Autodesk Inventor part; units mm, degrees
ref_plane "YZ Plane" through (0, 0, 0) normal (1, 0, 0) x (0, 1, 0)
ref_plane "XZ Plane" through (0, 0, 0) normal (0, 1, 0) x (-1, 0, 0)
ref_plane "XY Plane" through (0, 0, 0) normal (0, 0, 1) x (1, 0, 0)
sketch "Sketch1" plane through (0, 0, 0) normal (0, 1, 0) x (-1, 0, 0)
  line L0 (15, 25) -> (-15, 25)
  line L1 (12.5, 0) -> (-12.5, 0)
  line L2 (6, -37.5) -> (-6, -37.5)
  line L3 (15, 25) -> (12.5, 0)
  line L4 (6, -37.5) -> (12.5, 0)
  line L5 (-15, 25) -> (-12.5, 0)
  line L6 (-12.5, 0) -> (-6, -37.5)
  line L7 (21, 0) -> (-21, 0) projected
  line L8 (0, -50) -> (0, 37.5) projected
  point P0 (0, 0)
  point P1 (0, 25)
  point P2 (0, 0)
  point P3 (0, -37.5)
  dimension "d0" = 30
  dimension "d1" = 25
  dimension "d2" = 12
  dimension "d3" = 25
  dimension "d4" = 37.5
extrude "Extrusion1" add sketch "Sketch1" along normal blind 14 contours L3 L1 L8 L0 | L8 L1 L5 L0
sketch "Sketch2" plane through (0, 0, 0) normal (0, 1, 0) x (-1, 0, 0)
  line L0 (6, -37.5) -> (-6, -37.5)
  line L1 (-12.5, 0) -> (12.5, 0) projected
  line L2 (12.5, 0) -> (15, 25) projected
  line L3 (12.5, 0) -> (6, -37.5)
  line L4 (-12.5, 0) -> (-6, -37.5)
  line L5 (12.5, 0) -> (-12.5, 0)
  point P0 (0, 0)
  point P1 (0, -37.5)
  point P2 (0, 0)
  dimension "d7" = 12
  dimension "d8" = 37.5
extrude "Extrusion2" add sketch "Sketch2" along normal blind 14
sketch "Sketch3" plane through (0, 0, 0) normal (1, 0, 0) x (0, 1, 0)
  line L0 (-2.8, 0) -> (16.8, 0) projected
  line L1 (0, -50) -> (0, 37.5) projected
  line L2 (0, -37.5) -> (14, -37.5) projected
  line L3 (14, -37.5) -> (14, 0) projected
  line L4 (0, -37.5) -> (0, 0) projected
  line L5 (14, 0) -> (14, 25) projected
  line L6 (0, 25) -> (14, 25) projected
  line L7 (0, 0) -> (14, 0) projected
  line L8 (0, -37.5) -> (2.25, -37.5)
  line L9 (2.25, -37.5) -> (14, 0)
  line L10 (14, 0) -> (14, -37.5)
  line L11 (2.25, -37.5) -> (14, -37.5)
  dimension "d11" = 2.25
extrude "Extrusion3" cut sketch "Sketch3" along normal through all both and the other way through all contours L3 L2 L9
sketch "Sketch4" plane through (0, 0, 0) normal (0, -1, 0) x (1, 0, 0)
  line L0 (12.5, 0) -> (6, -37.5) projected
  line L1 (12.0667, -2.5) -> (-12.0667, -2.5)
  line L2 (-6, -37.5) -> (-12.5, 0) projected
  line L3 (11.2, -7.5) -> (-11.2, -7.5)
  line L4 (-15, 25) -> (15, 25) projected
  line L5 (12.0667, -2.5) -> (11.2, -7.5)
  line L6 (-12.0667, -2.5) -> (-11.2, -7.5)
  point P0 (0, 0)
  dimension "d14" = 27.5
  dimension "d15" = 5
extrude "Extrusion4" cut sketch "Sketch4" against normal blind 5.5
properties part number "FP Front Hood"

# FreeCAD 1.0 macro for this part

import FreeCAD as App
import Part
import Sketcher

V = App.Vector
Q = App.Units.Quantity


def add_polygon(sketch, points):
    """Adds a closed chain of lines whose ends are joined by coincident constraints."""
    first, n = sketch.GeometryCount, len(points)
    for a, b in zip(points, points[1:] + points[:1]):
        sketch.addGeometry(Part.LineSegment(App.Vector(*a, 0), App.Vector(*b, 0)), False)
    for i in range(n):
        sketch.addConstraint(Sketcher.Constraint("Coincident", first + i, 2, first + (i + 1) % n, 1))

doc = App.newDocument("Part")
params = doc.addObject("Spreadsheet::Sheet", "Params")
for row, (alias, value) in enumerate([
    ("sketch1_width", "30 mm"),
    ("sketch1_width2", "25 mm"),
    ("pad1_length", "14 mm"),
    ("sketch2_width", "12 mm"),
    ("sketch2_width2", "25 mm"),
    ("pad2_length", "14 mm"),
    ("sketch3_height", "37.5 mm"),
    ("sketch4_width", "22.4 mm"),
    ("pocket2_length", "5.5 mm"),
], start=1):
    params.set(f"A{row}", alias)
    params.set(f"B{row}", "=" + value)
    params.setAlias(f"B{row}", alias)

body = doc.addObject("PartDesign::Body", "Body")

sketch1 = body.newObject("Sketcher::SketchObject", "Sketch")
sketch1.AttachmentSupport = (doc.getObject("XZ_Plane"), [""])
sketch1.MapMode = "FlatFace"
add_polygon(sketch1, [(-12, 0), (-15, 25), (15, 25), (12, 0)])
sketch1.addConstraint(Sketcher.Constraint("Horizontal", 1))
sketch1.addConstraint(Sketcher.Constraint("Horizontal", 3))
sketch1.addConstraint(Sketcher.Constraint("Symmetric", 2, 2, 3, 2, -1, 1))
sketch1.addConstraint(Sketcher.Constraint("Equal", 0, 2))
sketch1.addConstraint(Sketcher.Constraint("DistanceX", 1, 1, 1, 2, Q("30 mm")))
sketch1.addConstraint(Sketcher.Constraint("DistanceX", 3, 2, 3, 1, Q("25 mm")))
sketch1.addConstraint(Sketcher.Constraint("DistanceY", -1, 1, 0, 2, Q("25 mm")))
sketch1.setExpression("Constraints[8]", "Params.sketch1_width")
sketch1.setExpression("Constraints[9]", "Params.sketch1_width2")
pad1 = body.newObject("PartDesign::Pad", "Pad")
pad1.Profile = sketch1
pad1.setExpression("Length", "Params.pad1_length")
pad1.Reversed = True

sketch2 = body.newObject("Sketcher::SketchObject", "Sketch001")
sketch2.AttachmentSupport = (doc.getObject("XZ_Plane"), [""])
sketch2.MapMode = "FlatFace"
add_polygon(sketch2, [(6, -38), (-6, -38), (-12, 0), (12, 0)])
sketch2.addConstraint(Sketcher.Constraint("Horizontal", 0))
sketch2.addConstraint(Sketcher.Constraint("Horizontal", 2))
sketch2.addConstraint(Sketcher.Constraint("Symmetric", 1, 2, 2, 2, -1, 1))
sketch2.addConstraint(Sketcher.Constraint("Equal", 1, 3))
sketch2.addConstraint(Sketcher.Constraint("DistanceX", 0, 2, 0, 1, Q("12 mm")))
sketch2.addConstraint(Sketcher.Constraint("DistanceY", 0, 2, -1, 1, Q("37.5 mm")))
sketch2.addConstraint(Sketcher.Constraint("DistanceX", 2, 1, 2, 2, Q("25 mm")))
sketch2.setExpression("Constraints[8]", "Params.sketch2_width")
sketch2.setExpression("Constraints[10]", "Params.sketch2_width2")
pad2 = body.newObject("PartDesign::Pad", "Pad001")
pad2.Profile = sketch2
pad2.setExpression("Length", "Params.pad2_length")
pad2.Reversed = True

sketch3 = body.newObject("Sketcher::SketchObject", "Sketch002")
sketch3.AttachmentSupport = (doc.getObject("YZ_Plane"), [""])
sketch3.MapMode = "FlatFace"
add_polygon(sketch3, [(14, -38), (14, 0), (2, -38)])
sketch3.addConstraint(Sketcher.Constraint("Vertical", 0))
sketch3.addConstraint(Sketcher.Constraint("Horizontal", 2))
sketch3.addConstraint(Sketcher.Constraint("PointOnObject", 0, 2, -1))
sketch3.addConstraint(Sketcher.Constraint("DistanceX", -1, 1, 1, 2, Q("2.25 mm")))
sketch3.addConstraint(Sketcher.Constraint("DistanceY", 0, 1, 0, 2, Q("37.5 mm")))
sketch3.addConstraint(Sketcher.Constraint("DistanceX", -1, 1, 0, 2, Q("14 mm")))
sketch3.setExpression("Constraints[7]", "Params.sketch3_height")
pocket1 = body.newObject("PartDesign::Pocket", "Pocket")
pocket1.Profile = sketch3
pocket1.Type = "ThroughAll"
pocket1.Midplane = True

sketch4 = body.newObject("Sketcher::SketchObject", "Sketch003")
sketch4.AttachmentSupport = (doc.getObject("XZ_Plane"), [""])
sketch4.MapMode = "FlatFace"
add_polygon(sketch4, [(11, -8), (12, -2), (-12, -2), (-11, -8)])
sketch4.addConstraint(Sketcher.Constraint("Horizontal", 1))
sketch4.addConstraint(Sketcher.Constraint("Horizontal", 3))
sketch4.addConstraint(Sketcher.Constraint("Equal", 0, 2))
sketch4.addConstraint(Sketcher.Constraint("DistanceY", 2, 2, 1, 2, Q("5 mm")))
sketch4.addConstraint(Sketcher.Constraint("DistanceX", 3, 1, 3, 2, Q("22.4 mm")))
sketch4.addConstraint(Sketcher.Constraint("DistanceY", 0, 2, -1, 1, Q("2.5 mm")))
sketch4.addConstraint(Sketcher.Constraint("DistanceX", 2, 2, -1, 1, Q("11.2 mm")))
sketch4.addConstraint(Sketcher.Constraint("DistanceX", 1, 2, 1, 1, Q("24.1334 mm")))
sketch4.setExpression("Constraints[8]", "Params.sketch4_width")
pocket2 = body.newObject("PartDesign::Pocket", "Pocket001")
pocket2.Profile = sketch4
pocket2.setExpression("Length", "Params.pocket2_length")

doc.recompute()
